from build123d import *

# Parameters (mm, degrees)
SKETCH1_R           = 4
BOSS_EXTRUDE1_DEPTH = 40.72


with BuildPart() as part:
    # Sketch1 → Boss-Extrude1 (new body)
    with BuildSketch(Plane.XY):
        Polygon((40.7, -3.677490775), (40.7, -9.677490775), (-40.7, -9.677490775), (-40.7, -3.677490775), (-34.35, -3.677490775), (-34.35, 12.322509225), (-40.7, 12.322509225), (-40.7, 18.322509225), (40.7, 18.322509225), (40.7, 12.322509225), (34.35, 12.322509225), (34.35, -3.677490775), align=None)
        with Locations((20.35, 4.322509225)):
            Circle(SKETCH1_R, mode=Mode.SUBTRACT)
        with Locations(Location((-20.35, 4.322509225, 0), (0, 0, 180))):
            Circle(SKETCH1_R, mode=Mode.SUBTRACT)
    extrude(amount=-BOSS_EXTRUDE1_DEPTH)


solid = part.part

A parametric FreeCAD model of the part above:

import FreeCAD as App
import Part
import Sketcher
from FreeCAD import Vector


def add_polygon(sketch, points):
    """Adds a closed chain of lines whose ends are joined by coincident constraints."""
    first, n = sketch.GeometryCount, len(points)
    for a, b in zip(points, points[1:] + points[:1]):
        sketch.addGeometry(Part.LineSegment(App.Vector(*a, 0), App.Vector(*b, 0)), False)
    for i in range(n):
        sketch.addConstraint(Sketcher.Constraint("Coincident", first + i, 2, first + (i + 1) % n, 1))

doc = App.newDocument("Part")
body = doc.addObject("PartDesign::Body", "Body")

# Sketch on XY plane
sketch1 = doc.addObject("Sketcher::SketchObject", "Sketch")
body.addObject(sketch1)
sketch1.AttachmentSupport = (doc.XY_Plane, [""])
sketch1.MapMode = "FlatFace"
add_polygon(sketch1, [(40.7, -9.677491), (40.7, -3.677491), (34.35, -3.677491), (34.35, 12.322509), (40.7, 12.322509), (40.7, 18.322509), (-40.7, 18.322509), (-40.7, 12.322509), (-34.35, 12.322509), (-34.35, -3.677491), (-40.7, -3.677491), (-40.7, -9.677491)])  # lines 0-11
sketch1.addGeometry(Part.Circle(Vector(20.35, 4.322509, 0), Vector(0, 0, 1), 4), False)  # 12
sketch1.addGeometry(Part.Circle(Vector(-20.35, 4.322509, 0), Vector(0, 0, 1), 4), False)  # 13
sketch1.addConstraint([
    Sketcher.Constraint("Vertical", 0),
    Sketcher.Constraint("Horizontal", 1),
    Sketcher.Constraint("Vertical", 2),
    Sketcher.Constraint("Horizontal", 3),
    Sketcher.Constraint("Vertical", 4),
    Sketcher.Constraint("Horizontal", 5),
    Sketcher.Constraint("Vertical", 6),
    Sketcher.Constraint("Horizontal", 7),
    Sketcher.Constraint("Vertical", 8),
    Sketcher.Constraint("Horizontal", 9),
    Sketcher.Constraint("Vertical", 10),
    Sketcher.Constraint("Horizontal", 11),
    Sketcher.Constraint("Equal", 12, 13),
    Sketcher.Constraint("Symmetric", 12, 3, 13, 3, -2),
    Sketcher.Constraint("Symmetric", 3, 2, 6, 2, -2),
    Sketcher.Constraint("Symmetric", 1, 2, 8, 2, -2),
    Sketcher.Constraint("Vertical", 0, 2, 3, 2),
    Sketcher.Constraint("Vertical", 6, 2, 9, 2),
    Sketcher.Constraint("Equal", 0, 4),
    Sketcher.Constraint("Diameter", 12, 8.0),
    Sketcher.Constraint("DistanceY", 0, 1, 0, 2, 6.0),
    Sketcher.Constraint("DistanceY", 2, 1, 2, 2, 16.0),
    Sketcher.Constraint("DistanceX", 5, 2, 5, 1, 81.4),
    Sketcher.Constraint("DistanceY", 0, 2, 12, 3, 8.0),
    Sketcher.Constraint("DistanceX", 12, 3, 1, 2, 14.0),
    Sketcher.Constraint("DistanceX", 1, 2, 1, 1, 6.35),
    Sketcher.Constraint("DistanceY", -1, 1, 12, 3, 4.322509),
])
pad1 = doc.addObject("PartDesign::Pad", "Pad")
body.addObject(pad1)
pad1.Profile = sketch1
pad1.Length = 40.72
pad1.Reversed = True

doc.recompute()
